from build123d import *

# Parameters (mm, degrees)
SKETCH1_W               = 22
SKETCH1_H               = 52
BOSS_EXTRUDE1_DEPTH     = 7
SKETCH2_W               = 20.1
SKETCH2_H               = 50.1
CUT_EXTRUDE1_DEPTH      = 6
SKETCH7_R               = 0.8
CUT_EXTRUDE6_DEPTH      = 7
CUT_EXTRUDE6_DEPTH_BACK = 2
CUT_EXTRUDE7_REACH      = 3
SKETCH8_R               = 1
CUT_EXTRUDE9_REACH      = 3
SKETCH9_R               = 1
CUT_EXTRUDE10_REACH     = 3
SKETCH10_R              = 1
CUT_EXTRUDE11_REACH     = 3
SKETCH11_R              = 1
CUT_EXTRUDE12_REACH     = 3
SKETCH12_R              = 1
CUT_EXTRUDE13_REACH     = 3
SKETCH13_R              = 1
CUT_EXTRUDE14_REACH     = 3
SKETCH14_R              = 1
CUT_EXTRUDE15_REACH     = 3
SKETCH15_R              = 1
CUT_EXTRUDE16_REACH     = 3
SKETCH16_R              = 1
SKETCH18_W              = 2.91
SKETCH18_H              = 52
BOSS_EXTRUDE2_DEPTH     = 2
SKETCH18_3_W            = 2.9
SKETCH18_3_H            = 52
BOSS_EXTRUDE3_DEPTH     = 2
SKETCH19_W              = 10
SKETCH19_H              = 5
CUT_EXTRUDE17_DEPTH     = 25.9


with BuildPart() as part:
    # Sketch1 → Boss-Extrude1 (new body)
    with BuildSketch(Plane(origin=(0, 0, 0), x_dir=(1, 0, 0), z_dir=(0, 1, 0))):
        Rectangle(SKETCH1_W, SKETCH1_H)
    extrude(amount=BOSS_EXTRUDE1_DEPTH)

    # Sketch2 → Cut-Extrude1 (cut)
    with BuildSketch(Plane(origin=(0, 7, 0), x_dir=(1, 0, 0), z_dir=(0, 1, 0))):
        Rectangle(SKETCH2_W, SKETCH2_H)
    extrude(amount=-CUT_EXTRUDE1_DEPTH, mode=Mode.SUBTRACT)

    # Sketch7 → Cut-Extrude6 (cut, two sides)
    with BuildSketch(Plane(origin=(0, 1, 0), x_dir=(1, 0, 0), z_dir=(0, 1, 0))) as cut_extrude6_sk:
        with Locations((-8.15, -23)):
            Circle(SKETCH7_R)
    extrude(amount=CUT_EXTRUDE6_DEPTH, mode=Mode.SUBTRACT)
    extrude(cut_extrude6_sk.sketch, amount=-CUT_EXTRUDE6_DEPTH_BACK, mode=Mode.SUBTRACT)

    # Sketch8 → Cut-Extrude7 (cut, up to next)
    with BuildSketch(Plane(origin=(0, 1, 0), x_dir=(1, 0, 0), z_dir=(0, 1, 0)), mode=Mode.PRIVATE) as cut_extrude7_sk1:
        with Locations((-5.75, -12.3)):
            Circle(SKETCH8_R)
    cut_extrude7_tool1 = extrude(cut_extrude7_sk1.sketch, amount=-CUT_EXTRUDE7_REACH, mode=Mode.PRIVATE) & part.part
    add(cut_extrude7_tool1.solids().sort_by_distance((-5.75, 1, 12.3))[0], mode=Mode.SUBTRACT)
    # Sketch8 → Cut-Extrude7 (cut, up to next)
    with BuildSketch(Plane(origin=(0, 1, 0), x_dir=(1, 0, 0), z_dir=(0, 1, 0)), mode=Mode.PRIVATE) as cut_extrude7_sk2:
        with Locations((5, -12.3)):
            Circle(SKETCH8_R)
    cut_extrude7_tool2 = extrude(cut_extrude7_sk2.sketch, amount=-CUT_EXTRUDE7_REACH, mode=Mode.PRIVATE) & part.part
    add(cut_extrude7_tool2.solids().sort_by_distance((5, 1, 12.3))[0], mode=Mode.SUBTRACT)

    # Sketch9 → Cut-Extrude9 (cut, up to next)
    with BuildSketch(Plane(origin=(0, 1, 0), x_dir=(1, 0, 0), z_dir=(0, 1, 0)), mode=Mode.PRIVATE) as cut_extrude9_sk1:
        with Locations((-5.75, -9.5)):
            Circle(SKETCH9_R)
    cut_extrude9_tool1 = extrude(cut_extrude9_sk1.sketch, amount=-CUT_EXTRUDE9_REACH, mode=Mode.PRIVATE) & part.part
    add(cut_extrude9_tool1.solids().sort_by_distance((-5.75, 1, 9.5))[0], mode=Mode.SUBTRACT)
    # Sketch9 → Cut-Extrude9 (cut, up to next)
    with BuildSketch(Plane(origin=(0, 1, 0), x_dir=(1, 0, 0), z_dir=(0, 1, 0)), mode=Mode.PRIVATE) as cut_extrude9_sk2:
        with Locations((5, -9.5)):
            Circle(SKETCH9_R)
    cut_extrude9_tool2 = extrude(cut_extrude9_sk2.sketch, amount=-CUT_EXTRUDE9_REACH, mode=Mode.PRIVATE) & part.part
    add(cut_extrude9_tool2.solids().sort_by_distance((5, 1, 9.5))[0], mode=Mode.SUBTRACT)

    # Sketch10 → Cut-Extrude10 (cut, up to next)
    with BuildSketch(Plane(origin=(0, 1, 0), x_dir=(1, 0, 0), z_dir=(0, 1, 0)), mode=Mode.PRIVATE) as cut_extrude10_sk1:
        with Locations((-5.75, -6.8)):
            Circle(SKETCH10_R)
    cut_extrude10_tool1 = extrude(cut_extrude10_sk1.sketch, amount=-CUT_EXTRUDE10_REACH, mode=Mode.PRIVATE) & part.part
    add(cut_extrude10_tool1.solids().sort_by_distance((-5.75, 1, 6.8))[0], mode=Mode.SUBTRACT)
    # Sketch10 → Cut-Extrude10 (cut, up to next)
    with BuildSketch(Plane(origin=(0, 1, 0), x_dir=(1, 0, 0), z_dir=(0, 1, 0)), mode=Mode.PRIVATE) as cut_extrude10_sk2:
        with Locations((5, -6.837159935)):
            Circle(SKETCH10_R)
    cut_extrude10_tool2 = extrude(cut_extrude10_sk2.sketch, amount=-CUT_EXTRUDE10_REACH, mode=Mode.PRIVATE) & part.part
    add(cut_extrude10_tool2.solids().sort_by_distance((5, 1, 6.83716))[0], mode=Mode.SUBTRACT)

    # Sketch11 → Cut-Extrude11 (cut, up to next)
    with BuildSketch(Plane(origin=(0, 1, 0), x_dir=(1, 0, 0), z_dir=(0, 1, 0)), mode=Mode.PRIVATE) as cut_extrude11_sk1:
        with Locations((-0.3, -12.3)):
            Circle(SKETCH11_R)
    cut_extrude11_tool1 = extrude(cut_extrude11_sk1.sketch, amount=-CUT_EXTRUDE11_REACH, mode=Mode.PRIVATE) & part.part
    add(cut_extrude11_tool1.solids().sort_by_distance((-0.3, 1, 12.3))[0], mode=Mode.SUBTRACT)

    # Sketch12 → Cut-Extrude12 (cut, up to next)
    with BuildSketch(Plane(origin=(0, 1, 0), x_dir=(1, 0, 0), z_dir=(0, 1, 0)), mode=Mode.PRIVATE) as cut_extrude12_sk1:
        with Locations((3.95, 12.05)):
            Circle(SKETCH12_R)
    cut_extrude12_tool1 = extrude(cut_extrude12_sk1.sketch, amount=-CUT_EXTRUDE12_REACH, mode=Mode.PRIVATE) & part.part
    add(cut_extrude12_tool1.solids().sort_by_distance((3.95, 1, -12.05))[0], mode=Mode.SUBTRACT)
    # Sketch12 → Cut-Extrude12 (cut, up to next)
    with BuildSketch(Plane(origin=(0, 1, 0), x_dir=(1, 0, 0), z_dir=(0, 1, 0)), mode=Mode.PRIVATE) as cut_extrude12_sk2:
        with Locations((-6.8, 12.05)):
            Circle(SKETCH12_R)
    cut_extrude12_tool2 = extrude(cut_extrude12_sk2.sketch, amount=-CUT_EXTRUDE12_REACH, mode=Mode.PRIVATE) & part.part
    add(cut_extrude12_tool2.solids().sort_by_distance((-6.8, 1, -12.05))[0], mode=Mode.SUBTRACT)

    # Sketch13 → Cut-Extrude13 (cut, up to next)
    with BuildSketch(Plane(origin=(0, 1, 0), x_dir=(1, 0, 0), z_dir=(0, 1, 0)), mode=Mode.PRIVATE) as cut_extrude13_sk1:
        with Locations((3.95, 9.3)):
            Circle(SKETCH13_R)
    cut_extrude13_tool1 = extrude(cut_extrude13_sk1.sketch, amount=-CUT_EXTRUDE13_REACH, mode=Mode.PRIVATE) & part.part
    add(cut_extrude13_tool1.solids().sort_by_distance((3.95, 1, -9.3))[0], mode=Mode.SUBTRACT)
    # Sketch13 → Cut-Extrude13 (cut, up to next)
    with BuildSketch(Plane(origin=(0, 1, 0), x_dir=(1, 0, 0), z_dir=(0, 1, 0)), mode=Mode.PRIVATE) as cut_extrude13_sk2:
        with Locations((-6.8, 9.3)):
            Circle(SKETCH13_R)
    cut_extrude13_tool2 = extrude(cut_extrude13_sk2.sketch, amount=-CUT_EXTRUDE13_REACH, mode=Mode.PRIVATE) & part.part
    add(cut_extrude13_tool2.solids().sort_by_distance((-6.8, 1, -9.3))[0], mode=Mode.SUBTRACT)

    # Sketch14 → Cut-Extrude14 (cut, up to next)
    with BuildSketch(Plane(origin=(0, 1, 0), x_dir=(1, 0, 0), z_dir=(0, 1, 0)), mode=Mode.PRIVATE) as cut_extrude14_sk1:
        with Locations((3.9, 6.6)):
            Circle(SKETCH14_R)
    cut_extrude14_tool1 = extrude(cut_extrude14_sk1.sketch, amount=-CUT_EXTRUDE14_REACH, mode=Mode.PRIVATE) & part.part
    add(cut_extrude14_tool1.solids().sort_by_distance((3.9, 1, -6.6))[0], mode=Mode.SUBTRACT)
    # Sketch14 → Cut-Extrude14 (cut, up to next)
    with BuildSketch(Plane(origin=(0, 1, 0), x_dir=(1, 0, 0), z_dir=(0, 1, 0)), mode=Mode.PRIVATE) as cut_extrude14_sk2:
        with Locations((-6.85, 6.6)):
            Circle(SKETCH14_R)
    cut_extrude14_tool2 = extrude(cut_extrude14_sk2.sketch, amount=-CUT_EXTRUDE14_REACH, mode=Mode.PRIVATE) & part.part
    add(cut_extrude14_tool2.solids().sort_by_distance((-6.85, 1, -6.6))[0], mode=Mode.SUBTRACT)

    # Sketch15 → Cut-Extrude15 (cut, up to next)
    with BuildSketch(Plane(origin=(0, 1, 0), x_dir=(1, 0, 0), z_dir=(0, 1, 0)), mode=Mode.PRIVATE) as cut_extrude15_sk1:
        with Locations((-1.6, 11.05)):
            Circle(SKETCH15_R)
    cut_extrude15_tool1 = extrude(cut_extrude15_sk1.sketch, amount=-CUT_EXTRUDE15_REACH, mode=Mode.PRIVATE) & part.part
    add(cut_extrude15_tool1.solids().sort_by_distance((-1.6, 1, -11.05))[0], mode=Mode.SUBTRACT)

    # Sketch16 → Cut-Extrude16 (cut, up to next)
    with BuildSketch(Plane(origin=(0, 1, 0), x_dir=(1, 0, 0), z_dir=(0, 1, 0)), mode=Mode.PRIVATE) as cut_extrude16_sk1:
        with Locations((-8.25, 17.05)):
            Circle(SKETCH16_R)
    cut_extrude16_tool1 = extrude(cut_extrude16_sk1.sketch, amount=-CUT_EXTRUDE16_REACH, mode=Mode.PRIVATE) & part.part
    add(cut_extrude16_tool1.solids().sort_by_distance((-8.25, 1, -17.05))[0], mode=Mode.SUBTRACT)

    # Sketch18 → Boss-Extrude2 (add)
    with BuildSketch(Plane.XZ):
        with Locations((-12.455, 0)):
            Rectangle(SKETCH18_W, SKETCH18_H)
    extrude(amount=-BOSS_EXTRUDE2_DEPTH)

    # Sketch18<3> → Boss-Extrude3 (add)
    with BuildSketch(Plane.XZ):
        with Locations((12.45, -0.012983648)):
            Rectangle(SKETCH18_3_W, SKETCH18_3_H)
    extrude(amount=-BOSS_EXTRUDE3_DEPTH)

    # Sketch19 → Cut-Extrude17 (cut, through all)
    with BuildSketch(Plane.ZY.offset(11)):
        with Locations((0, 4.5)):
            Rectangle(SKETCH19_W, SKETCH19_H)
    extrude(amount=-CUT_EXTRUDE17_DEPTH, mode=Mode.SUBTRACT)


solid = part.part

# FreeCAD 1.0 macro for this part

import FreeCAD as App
import Part
import Sketcher
from FreeCAD import Vector
Q = App.Units.Quantity

doc = App.newDocument("Part")
body = doc.addObject("PartDesign::Body", "Body")

# Sketch on XZ plane
sketch1 = body.newObject("Sketcher::SketchObject", "Sketch")
sketch1.AttachmentSupport = (doc.getObject("XZ_Plane"), [""])
sketch1.MapMode = "FlatFace"
sketch1.addGeometry(Part.LineSegment(Vector(-11, -26, 0), Vector(-11, 26, 0)), False)
sketch1.addGeometry(Part.LineSegment(Vector(-11, 26, 0), Vector(11, 26, 0)), False)
sketch1.addGeometry(Part.LineSegment(Vector(11, 26, 0), Vector(11, -26, 0)), False)
sketch1.addGeometry(Part.LineSegment(Vector(11, -26, 0), Vector(-11, -26, 0)), False)
sketch1.addConstraint(Sketcher.Constraint("Coincident", 0, 2, 1, 1))
sketch1.addConstraint(Sketcher.Constraint("Coincident", 1, 2, 2, 1))
sketch1.addConstraint(Sketcher.Constraint("Coincident", 2, 2, 3, 1))
sketch1.addConstraint(Sketcher.Constraint("Coincident", 3, 2, 0, 1))
sketch1.addConstraint(Sketcher.Constraint("Vertical", 0))
sketch1.addConstraint(Sketcher.Constraint("Horizontal", 1))
sketch1.addConstraint(Sketcher.Constraint("Vertical", 2))
sketch1.addConstraint(Sketcher.Constraint("Horizontal", 3))
sketch1.addConstraint(Sketcher.Constraint("Symmetric", 0, 2, 2, 2, -1, 1))
sketch1.addConstraint(Sketcher.Constraint("DistanceX", 1, 1, 1, 2, Q("22 mm")))
sketch1.addConstraint(Sketcher.Constraint("DistanceY", 0, 1, 0, 2, Q("52 mm")))
pad1 = body.newObject("PartDesign::Pad", "Pad")
pad1.Profile = sketch1
pad1.Length = 7
pad1.Reversed = True

# Sketch on XZ plane
sketch2 = body.newObject("Sketcher::SketchObject", "Sketch001")
sketch2.AttachmentSupport = (doc.getObject("XZ_Plane"), [""])
sketch2.MapMode = "FlatFace"
sketch2.AttachmentOffset = App.Placement(Vector(0, 0, -7), App.Rotation())
sketch2.addGeometry(Part.LineSegment(Vector(-10, -25, 0), Vector(-10, 25, 0)), False)
sketch2.addGeometry(Part.LineSegment(Vector(-10, 25, 0), Vector(10, 25, 0)), False)
sketch2.addGeometry(Part.LineSegment(Vector(10, 25, 0), Vector(10, -25, 0)), False)
sketch2.addGeometry(Part.LineSegment(Vector(10, -25, 0), Vector(-10, -25, 0)), False)
sketch2.addConstraint(Sketcher.Constraint("Coincident", 0, 2, 1, 1))
sketch2.addConstraint(Sketcher.Constraint("Coincident", 1, 2, 2, 1))
sketch2.addConstraint(Sketcher.Constraint("Coincident", 2, 2, 3, 1))
sketch2.addConstraint(Sketcher.Constraint("Coincident", 3, 2, 0, 1))
sketch2.addConstraint(Sketcher.Constraint("Vertical", 0))
sketch2.addConstraint(Sketcher.Constraint("Horizontal", 1))
sketch2.addConstraint(Sketcher.Constraint("Vertical", 2))
sketch2.addConstraint(Sketcher.Constraint("Horizontal", 3))
sketch2.addConstraint(Sketcher.Constraint("Symmetric", 0, 2, 2, 2, -1, 1))
sketch2.addConstraint(Sketcher.Constraint("DistanceX", 1, 1, 1, 2, Q("20.1 mm")))
sketch2.addConstraint(Sketcher.Constraint("DistanceY", 0, 1, 0, 2, Q("50.1 mm")))
pocket1 = body.newObject("PartDesign::Pocket", "Pocket")
pocket1.Profile = sketch2
pocket1.Length = 6
pocket1.Reversed = True

# Sketch on XZ plane
sketch3 = body.newObject("Sketcher::SketchObject", "Sketch002")
sketch3.AttachmentSupport = (doc.getObject("XZ_Plane"), [""])
sketch3.MapMode = "FlatFace"
sketch3.AttachmentOffset = App.Placement(Vector(0, 0, -1), App.Rotation())
sketch3.addGeometry(Part.Circle(Vector(-8.2, 23, 0), Vector(0, 0, 1), 0.8), False)
sketch3.addConstraint(Sketcher.Constraint("Diameter", 0, Q("1.6 mm")))
sketch3.addConstraint(Sketcher.Constraint("DistanceY", -1, 1, 0, 3, Q("23 mm")))
sketch3.addConstraint(Sketcher.Constraint("DistanceX", 0, 3, -1, 1, Q("8.15 mm")))
pocket2 = body.newObject("PartDesign::Pocket", "Pocket001")
pocket2.Profile = sketch3
pocket2.Type = "ThroughAll"
pocket2.Midplane = True

# Sketch on XZ plane
sketch4 = body.newObject("Sketcher::SketchObject", "Sketch003")
sketch4.AttachmentSupport = (doc.getObject("XZ_Plane"), [""])
sketch4.MapMode = "FlatFace"
sketch4.AttachmentOffset = App.Placement(Vector(0, 0, -1), App.Rotation())
sketch4.addGeometry(Part.Circle(Vector(-5.8, 12.3, 0), Vector(0, 0, 1), 1), False)
sketch4.addConstraint(Sketcher.Constraint("Diameter", 0, Q("2 mm")))
sketch4.addConstraint(Sketcher.Constraint("DistanceY", -1, 1, 0, 3, Q("12.3 mm")))
sketch4.addConstraint(Sketcher.Constraint("DistanceX", 0, 3, -1, 1, Q("5.75 mm")))
pocket3 = body.newObject("PartDesign::Pocket", "Pocket002")
pocket3.Profile = sketch4
pocket3.Type = "UpToFirst"
pocket3.Reversed = True

# Sketch on XZ plane
sketch5 = body.newObject("Sketcher::SketchObject", "Sketch004")
sketch5.AttachmentSupport = (doc.getObject("XZ_Plane"), [""])
sketch5.MapMode = "FlatFace"
sketch5.AttachmentOffset = App.Placement(Vector(0, 0, -1), App.Rotation())
sketch5.addGeometry(Part.Circle(Vector(5, 12.3, 0), Vector(0, 0, 1), 1), False)
sketch5.addConstraint(Sketcher.Constraint("Diameter", 0, Q("2 mm")))
sketch5.addConstraint(Sketcher.Constraint("DistanceX", -1, 1, 0, 3, Q("5 mm")))
sketch5.addConstraint(Sketcher.Constraint("DistanceY", -1, 1, 0, 3, Q("12.3 mm")))
pocket4 = body.newObject("PartDesign::Pocket", "Pocket003")
pocket4.Profile = sketch5
pocket4.Type = "UpToFirst"
pocket4.Reversed = True

# Sketch on XZ plane
sketch6 = body.newObject("Sketcher::SketchObject", "Sketch005")
sketch6.AttachmentSupport = (doc.getObject("XZ_Plane"), [""])
sketch6.MapMode = "FlatFace"
sketch6.AttachmentOffset = App.Placement(Vector(0, 0, -1), App.Rotation())
sketch6.addGeometry(Part.Circle(Vector(-5.8, 9.5, 0), Vector(0, 0, 1), 1), False)
sketch6.addConstraint(Sketcher.Constraint("Diameter", 0, Q("2 mm")))
sketch6.addConstraint(Sketcher.Constraint("DistanceY", -1, 1, 0, 3, Q("9.5 mm")))
sketch6.addConstraint(Sketcher.Constraint("DistanceX", 0, 3, -1, 1, Q("5.75 mm")))
pocket5 = body.newObject("PartDesign::Pocket", "Pocket004")
pocket5.Profile = sketch6
pocket5.Type = "UpToFirst"
pocket5.Reversed = True

# Sketch on XZ plane
sketch7 = body.newObject("Sketcher::SketchObject", "Sketch006")
sketch7.AttachmentSupport = (doc.getObject("XZ_Plane"), [""])
sketch7.MapMode = "FlatFace"
sketch7.AttachmentOffset = App.Placement(Vector(0, 0, -1), App.Rotation())
sketch7.addGeometry(Part.Circle(Vector(5, 9.5, 0), Vector(0, 0, 1), 1), False)
sketch7.addConstraint(Sketcher.Constraint("Diameter", 0, Q("2 mm")))
sketch7.addConstraint(Sketcher.Constraint("DistanceX", -1, 1, 0, 3, Q("5 mm")))
sketch7.addConstraint(Sketcher.Constraint("DistanceY", -1, 1, 0, 3, Q("9.5 mm")))
pocket6 = body.newObject("PartDesign::Pocket", "Pocket005")
pocket6.Profile = sketch7
pocket6.Type = "UpToFirst"
pocket6.Reversed = True

# Sketch on XZ plane
sketch8 = body.newObject("Sketcher::SketchObject", "Sketch007")
sketch8.AttachmentSupport = (doc.getObject("XZ_Plane"), [""])
sketch8.MapMode = "FlatFace"
sketch8.AttachmentOffset = App.Placement(Vector(0, 0, -1), App.Rotation())
sketch8.addGeometry(Part.Circle(Vector(-5.8, 6.8, 0), Vector(0, 0, 1), 1), False)
sketch8.addConstraint(Sketcher.Constraint("Diameter", 0, Q("2 mm")))
sketch8.addConstraint(Sketcher.Constraint("DistanceY", -1, 1, 0, 3, Q("6.8 mm")))
sketch8.addConstraint(Sketcher.Constraint("DistanceX", 0, 3, -1, 1, Q("5.75 mm")))
pocket7 = body.newObject("PartDesign::Pocket", "Pocket006")
pocket7.Profile = sketch8
pocket7.Type = "UpToFirst"
pocket7.Reversed = True

# Sketch on XZ plane
sketch9 = body.newObject("Sketcher::SketchObject", "Sketch008")
sketch9.AttachmentSupport = (doc.getObject("XZ_Plane"), [""])
sketch9.MapMode = "FlatFace"
sketch9.AttachmentOffset = App.Placement(Vector(0, 0, -1), App.Rotation())
sketch9.addGeometry(Part.Circle(Vector(5, 6.8, 0), Vector(0, 0, 1), 1), False)
sketch9.addConstraint(Sketcher.Constraint("Diameter", 0, Q("2 mm")))
sketch9.addConstraint(Sketcher.Constraint("DistanceX", -1, 1, 0, 3, Q("5 mm")))
sketch9.addConstraint(Sketcher.Constraint("DistanceY", -1, 1, 0, 3, Q("6.83716 mm")))
pocket8 = body.newObject("PartDesign::Pocket", "Pocket007")
pocket8.Profile = sketch9
pocket8.Type = "UpToFirst"
pocket8.Reversed = True

# Sketch on XZ plane
sketch10 = body.newObject("Sketcher::SketchObject", "Sketch009")
sketch10.AttachmentSupport = (doc.getObject("XZ_Plane"), [""])
sketch10.MapMode = "FlatFace"
sketch10.AttachmentOffset = App.Placement(Vector(0, 0, -1), App.Rotation())
sketch10.addGeometry(Part.Circle(Vector(-0.3, 12.3, 0), Vector(0, 0, 1), 1), False)
sketch10.addConstraint(Sketcher.Constraint("Diameter", 0, Q("2 mm")))
sketch10.addConstraint(Sketcher.Constraint("DistanceX", 0, 3, -1, 1, Q("0.3 mm")))
sketch10.addConstraint(Sketcher.Constraint("DistanceY", -1, 1, 0, 3, Q("12.3 mm")))
pocket9 = body.newObject("PartDesign::Pocket", "Pocket008")
pocket9.Profile = sketch10
pocket9.Type = "UpToFirst"
pocket9.Reversed = True

# Sketch on XZ plane
sketch11 = body.newObject("Sketcher::SketchObject", "Sketch010")
sketch11.AttachmentSupport = (doc.getObject("XZ_Plane"), [""])
sketch11.MapMode = "FlatFace"
sketch11.AttachmentOffset = App.Placement(Vector(0, 0, -1), App.Rotation())
sketch11.addGeometry(Part.Circle(Vector(4, -12.1, 0), Vector(0, 0, 1), 1), False)
sketch11.addConstraint(Sketcher.Constraint("Diameter", 0, Q("2 mm")))
sketch11.addConstraint(Sketcher.Constraint("DistanceX", -1, 1, 0, 3, Q("3.95 mm")))
sketch11.addConstraint(Sketcher.Constraint("DistanceY", 0, 3, -1, 1, Q("12.05 mm")))
pocket10 = body.newObject("PartDesign::Pocket", "Pocket009")
pocket10.Profile = sketch11
pocket10.Type = "UpToFirst"
pocket10.Reversed = True

# Sketch on XZ plane
sketch12 = body.newObject("Sketcher::SketchObject", "Sketch011")
sketch12.AttachmentSupport = (doc.getObject("XZ_Plane"), [""])
sketch12.MapMode = "FlatFace"
sketch12.AttachmentOffset = App.Placement(Vector(0, 0, -1), App.Rotation())
sketch12.addGeometry(Part.Circle(Vector(-6.8, -12.1, 0), Vector(0, 0, 1), 1), False)
sketch12.addConstraint(Sketcher.Constraint("Diameter", 0, Q("2 mm")))
sketch12.addConstraint(Sketcher.Constraint("DistanceX", 0, 3, -1, 1, Q("6.8 mm")))
sketch12.addConstraint(Sketcher.Constraint("DistanceY", 0, 3, -1, 1, Q("12.05 mm")))
pocket11 = body.newObject("PartDesign::Pocket", "Pocket010")
pocket11.Profile = sketch12
pocket11.Type = "UpToFirst"
pocket11.Reversed = True

# Sketch on XZ plane
sketch13 = body.newObject("Sketcher::SketchObject", "Sketch012")
sketch13.AttachmentSupport = (doc.getObject("XZ_Plane"), [""])
sketch13.MapMode = "FlatFace"
sketch13.AttachmentOffset = App.Placement(Vector(0, 0, -1), App.Rotation())
sketch13.addGeometry(Part.Circle(Vector(4, -9.3, 0), Vector(0, 0, 1), 1), False)
sketch13.addConstraint(Sketcher.Constraint("Diameter", 0, Q("2 mm")))
sketch13.addConstraint(Sketcher.Constraint("DistanceY", 0, 3, -1, 1, Q("9.3 mm")))
sketch13.addConstraint(Sketcher.Constraint("DistanceX", -1, 1, 0, 3, Q("3.95 mm")))
pocket12 = body.newObject("PartDesign::Pocket", "Pocket011")
pocket12.Profile = sketch13
pocket12.Type = "UpToFirst"
pocket12.Reversed = True

# Sketch on XZ plane
sketch14 = body.newObject("Sketcher::SketchObject", "Sketch013")
sketch14.AttachmentSupport = (doc.getObject("XZ_Plane"), [""])
sketch14.MapMode = "FlatFace"
sketch14.AttachmentOffset = App.Placement(Vector(0, 0, -1), App.Rotation())
sketch14.addGeometry(Part.Circle(Vector(-6.8, -9.3, 0), Vector(0, 0, 1), 1), False)
sketch14.addConstraint(Sketcher.Constraint("Diameter", 0, Q("2 mm")))
sketch14.addConstraint(Sketcher.Constraint("DistanceX", 0, 3, -1, 1, Q("6.8 mm")))
sketch14.addConstraint(Sketcher.Constraint("DistanceY", 0, 3, -1, 1, Q("9.3 mm")))
pocket13 = body.newObject("PartDesign::Pocket", "Pocket012")
pocket13.Profile = sketch14
pocket13.Type = "UpToFirst"
pocket13.Reversed = True

# Sketch on XZ plane
sketch15 = body.newObject("Sketcher::SketchObject", "Sketch014")
sketch15.AttachmentSupport = (doc.getObject("XZ_Plane"), [""])
sketch15.MapMode = "FlatFace"
sketch15.AttachmentOffset = App.Placement(Vector(0, 0, -1), App.Rotation())
sketch15.addGeometry(Part.Circle(Vector(3.9, -6.6, 0), Vector(0, 0, 1), 1), False)
sketch15.addConstraint(Sketcher.Constraint("Diameter", 0, Q("2 mm")))
sketch15.addConstraint(Sketcher.Constraint("DistanceX", -1, 1, 0, 3, Q("3.9 mm")))
sketch15.addConstraint(Sketcher.Constraint("DistanceY", 0, 3, -1, 1, Q("6.6 mm")))
pocket14 = body.newObject("PartDesign::Pocket", "Pocket013")
pocket14.Profile = sketch15
pocket14.Type = "UpToFirst"
pocket14.Reversed = True

# Sketch on XZ plane
sketch16 = body.newObject("Sketcher::SketchObject", "Sketch015")
sketch16.AttachmentSupport = (doc.getObject("XZ_Plane"), [""])
sketch16.MapMode = "FlatFace"
sketch16.AttachmentOffset = App.Placement(Vector(0, 0, -1), App.Rotation())
sketch16.addGeometry(Part.Circle(Vector(-6.8, -6.6, 0), Vector(0, 0, 1), 1), False)
sketch16.addConstraint(Sketcher.Constraint("Diameter", 0, Q("2 mm")))
sketch16.addConstraint(Sketcher.Constraint("DistanceY", 0, 3, -1, 1, Q("6.6 mm")))
sketch16.addConstraint(Sketcher.Constraint("DistanceX", 0, 3, -1, 1, Q("6.85 mm")))
pocket15 = body.newObject("PartDesign::Pocket", "Pocket014")
pocket15.Profile = sketch16
pocket15.Type = "UpToFirst"
pocket15.Reversed = True

# Sketch on XZ plane
sketch17 = body.newObject("Sketcher::SketchObject", "Sketch016")
sketch17.AttachmentSupport = (doc.getObject("XZ_Plane"), [""])
sketch17.MapMode = "FlatFace"
sketch17.AttachmentOffset = App.Placement(Vector(0, 0, -1), App.Rotation())
sketch17.addGeometry(Part.Circle(Vector(-1.6, -11.1, 0), Vector(0, 0, 1), 1), False)
sketch17.addConstraint(Sketcher.Constraint("Diameter", 0, Q("2 mm")))
sketch17.addConstraint(Sketcher.Constraint("DistanceX", 0, 3, -1, 1, Q("1.6 mm")))
sketch17.addConstraint(Sketcher.Constraint("DistanceY", 0, 3, -1, 1, Q("11.05 mm")))
pocket16 = body.newObject("PartDesign::Pocket", "Pocket015")
pocket16.Profile = sketch17
pocket16.Type = "UpToFirst"
pocket16.Reversed = True

# Sketch on XZ plane
sketch18 = body.newObject("Sketcher::SketchObject", "Sketch017")
sketch18.AttachmentSupport = (doc.getObject("XZ_Plane"), [""])
sketch18.MapMode = "FlatFace"
sketch18.AttachmentOffset = App.Placement(Vector(0, 0, -1), App.Rotation())
sketch18.addGeometry(Part.Circle(Vector(-8.2, -17.1, 0), Vector(0, 0, 1), 1), False)
sketch18.addConstraint(Sketcher.Constraint("Diameter", 0, Q("2 mm")))
sketch18.addConstraint(Sketcher.Constraint("DistanceX", 0, 3, -1, 1, Q("8.25 mm")))
sketch18.addConstraint(Sketcher.Constraint("DistanceY", 0, 3, -1, 1, Q("17.05 mm")))
pocket17 = body.newObject("PartDesign::Pocket", "Pocket016")
pocket17.Profile = sketch18
pocket17.Type = "UpToFirst"
pocket17.Reversed = True

# Sketch on XZ plane
sketch19 = body.newObject("Sketcher::SketchObject", "Sketch018")
sketch19.AttachmentSupport = (doc.getObject("XZ_Plane"), [""])
sketch19.MapMode = "FlatFace"
sketch19.addGeometry(Part.LineSegment(Vector(-13.9, 26, 0), Vector(-13.9, -26, 0)), False)
sketch19.addGeometry(Part.LineSegment(Vector(-13.9, -26, 0), Vector(-11, -26, 0)), False)
sketch19.addGeometry(Part.LineSegment(Vector(-11, -26, 0), Vector(-11, 26, 0)), False)
sketch19.addGeometry(Part.LineSegment(Vector(-11, 26, 0), Vector(-13.9, 26, 0)), False)
sketch19.addConstraint(Sketcher.Constraint("Coincident", 0, 2, 1, 1))
sketch19.addConstraint(Sketcher.Constraint("Coincident", 1, 2, 2, 1))
sketch19.addConstraint(Sketcher.Constraint("Coincident", 2, 2, 3, 1))
sketch19.addConstraint(Sketcher.Constraint("Coincident", 3, 2, 0, 1))
sketch19.addConstraint(Sketcher.Constraint("Vertical", 0))
sketch19.addConstraint(Sketcher.Constraint("Horizontal", 1))
sketch19.addConstraint(Sketcher.Constraint("Vertical", 2))
sketch19.addConstraint(Sketcher.Constraint("Horizontal", 3))
sketch19.addConstraint(Sketcher.Constraint("DistanceY", 0, 2, 0, 1, Q("52 mm")))
sketch19.addConstraint(Sketcher.Constraint("DistanceY", 0, 2, -1, 1, Q("26 mm")))
sketch19.addConstraint(Sketcher.Constraint("DistanceX", 1, 2, -1, 1, Q("11 mm")))
sketch19.addConstraint(Sketcher.Constraint("DistanceX", 1, 1, 1, 2, Q("2.91 mm")))
pad2 = body.newObject("PartDesign::Pad", "Pad001")
pad2.Profile = sketch19
pad2.Length = 2
pad2.Reversed = True

# Sketch on XZ plane
sketch20 = body.newObject("Sketcher::SketchObject", "Sketch019")
sketch20.AttachmentSupport = (doc.getObject("XZ_Plane"), [""])
sketch20.MapMode = "FlatFace"
sketch20.addGeometry(Part.LineSegment(Vector(11, 26, 0), Vector(11, -26, 0)), False)
sketch20.addGeometry(Part.LineSegment(Vector(11, -26, 0), Vector(13.9, -26, 0)), False)
sketch20.addGeometry(Part.LineSegment(Vector(13.9, -26, 0), Vector(13.9, 26, 0)), False)
sketch20.addGeometry(Part.LineSegment(Vector(13.9, 26, 0), Vector(11, 26, 0)), False)
sketch20.addConstraint(Sketcher.Constraint("Coincident", 0, 2, 1, 1))
sketch20.addConstraint(Sketcher.Constraint("Coincident", 1, 2, 2, 1))
sketch20.addConstraint(Sketcher.Constraint("Coincident", 2, 2, 3, 1))
sketch20.addConstraint(Sketcher.Constraint("Coincident", 3, 2, 0, 1))
sketch20.addConstraint(Sketcher.Constraint("Vertical", 0))
sketch20.addConstraint(Sketcher.Constraint("Horizontal", 1))
sketch20.addConstraint(Sketcher.Constraint("Vertical", 2))
sketch20.addConstraint(Sketcher.Constraint("Horizontal", 3))
sketch20.addConstraint(Sketcher.Constraint("DistanceY", 0, 2, 0, 1, Q("52 mm")))
sketch20.addConstraint(Sketcher.Constraint("DistanceX", 1, 1, 1, 2, Q("2.9 mm")))
sketch20.addConstraint(Sketcher.Constraint("DistanceX", -1, 1, 0, 2, Q("11 mm")))
sketch20.addConstraint(Sketcher.Constraint("DistanceY", 0, 2, -1, 1, Q("26.012984 mm")))
pad3 = body.newObject("PartDesign::Pad", "Pad002")
pad3.Profile = sketch20
pad3.Length = 2
pad3.Reversed = True

# Sketch on YZ plane
sketch21 = body.newObject("Sketcher::SketchObject", "Sketch020")
sketch21.AttachmentSupport = (doc.getObject("YZ_Plane"), [""])
sketch21.MapMode = "FlatFace"
sketch21.AttachmentOffset = App.Placement(Vector(0, 0, -11), App.Rotation())
sketch21.addGeometry(Part.LineSegment(Vector(7, -5, 0), Vector(2, -5, 0)), False)
sketch21.addGeometry(Part.LineSegment(Vector(2, -5, 0), Vector(2, 5, 0)), False)
sketch21.addGeometry(Part.LineSegment(Vector(2, 5, 0), Vector(7, 5, 0)), False)
sketch21.addGeometry(Part.LineSegment(Vector(7, 5, 0), Vector(7, -5, 0)), False)
sketch21.addConstraint(Sketcher.Constraint("Coincident", 0, 2, 1, 1))
sketch21.addConstraint(Sketcher.Constraint("Coincident", 1, 2, 2, 1))
sketch21.addConstraint(Sketcher.Constraint("Coincident", 2, 2, 3, 1))
sketch21.addConstraint(Sketcher.Constraint("Coincident", 3, 2, 0, 1))
sketch21.addConstraint(Sketcher.Constraint("Horizontal", 0))
sketch21.addConstraint(Sketcher.Constraint("Vertical", 1))
sketch21.addConstraint(Sketcher.Constraint("Horizontal", 2))
sketch21.addConstraint(Sketcher.Constraint("Vertical", 3))
sketch21.addConstraint(Sketcher.Constraint("DistanceX", 0, 2, 0, 1, Q("5 mm")))
sketch21.addConstraint(Sketcher.Constraint("DistanceY", 1, 1, 1, 2, Q("10 mm")))
sketch21.addConstraint(Sketcher.Constraint("DistanceX", -1, 1, 0, 2, Q("2 mm")))
sketch21.addConstraint(Sketcher.Constraint("DistanceY", 0, 2, -1, 1, Q("5 mm")))
pocket18 = body.newObject("PartDesign::Pocket", "Pocket017")
pocket18.Profile = sketch21
pocket18.Type = "ThroughAll"
pocket18.Reversed = True

doc.recompute()
